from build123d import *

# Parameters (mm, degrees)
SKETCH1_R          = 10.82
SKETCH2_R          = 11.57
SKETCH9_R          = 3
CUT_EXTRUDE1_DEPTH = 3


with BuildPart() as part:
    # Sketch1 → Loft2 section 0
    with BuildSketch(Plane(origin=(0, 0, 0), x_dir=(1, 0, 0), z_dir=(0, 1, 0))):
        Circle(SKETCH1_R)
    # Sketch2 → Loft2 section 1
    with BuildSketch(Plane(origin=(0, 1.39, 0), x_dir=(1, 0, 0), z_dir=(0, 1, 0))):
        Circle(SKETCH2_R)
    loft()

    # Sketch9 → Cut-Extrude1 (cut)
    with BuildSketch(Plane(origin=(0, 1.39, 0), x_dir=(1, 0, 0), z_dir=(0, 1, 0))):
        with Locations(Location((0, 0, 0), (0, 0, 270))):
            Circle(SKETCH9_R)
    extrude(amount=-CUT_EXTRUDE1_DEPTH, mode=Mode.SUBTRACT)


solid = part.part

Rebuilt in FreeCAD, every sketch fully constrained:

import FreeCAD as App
import Part
import Sketcher
Q = App.Units.Quantity

doc = App.newDocument("Part")
body = doc.addObject("PartDesign::Body", "Body")

# Sketch on XZ plane
sketch1 = doc.addObject("Sketcher::SketchObject", "Sketch")
body.addObject(sketch1)
sketch1.AttachmentSupport = (doc.XZ_Plane, [""])
sketch1.MapMode = "FlatFace"
sketch1.addGeometry(Part.Circle(App.Vector(0, 0, 0), App.Vector(0, 0, 1), 11), False)
sketch1.addConstraint([
    Sketcher.Constraint("Coincident", 0, 3, -1, 1),
    Sketcher.Constraint("Diameter", 0, Q("21.64 mm")),
])

# Sketch on XZ plane
sketch2 = doc.addObject("Sketcher::SketchObject", "Sketch001")
body.addObject(sketch2)
sketch2.AttachmentSupport = (doc.XZ_Plane, [""])
sketch2.MapMode = "FlatFace"
sketch2.AttachmentOffset = App.Placement(App.Vector(0, 0, -1.39), App.Rotation())
sketch2.addGeometry(Part.Circle(App.Vector(0, 0, 0), App.Vector(0, 0, 1), 12), False)
sketch2.addConstraint([
    Sketcher.Constraint("Coincident", 0, 3, -1, 1),
    Sketcher.Constraint("Diameter", 0, Q("23.14 mm")),
])

additiveloft = doc.addObject("PartDesign::AdditiveLoft", "AdditiveLoft")
body.addObject(additiveloft)
additiveloft.Profile = sketch1
additiveloft.Sections = [sketch2]

# Sketch on XZ plane
sketch3 = doc.addObject("Sketcher::SketchObject", "Sketch002")
body.addObject(sketch3)
sketch3.AttachmentSupport = (doc.XZ_Plane, [""])
sketch3.MapMode = "FlatFace"
sketch3.AttachmentOffset = App.Placement(App.Vector(0, 0, -1.39), App.Rotation())
sketch3.addGeometry(Part.Circle(App.Vector(0, 0, 0), App.Vector(0, 0, 1), 3), False)
sketch3.addConstraint([
    Sketcher.Constraint("Coincident", 0, 3, -1, 1),
    Sketcher.Constraint("Diameter", 0, Q("6 mm")),
])
pocket1 = doc.addObject("PartDesign::Pocket", "Pocket")
body.addObject(pocket1)
pocket1.Profile = sketch3
pocket1.Length = 3
pocket1.Reversed = True

doc.recompute()
